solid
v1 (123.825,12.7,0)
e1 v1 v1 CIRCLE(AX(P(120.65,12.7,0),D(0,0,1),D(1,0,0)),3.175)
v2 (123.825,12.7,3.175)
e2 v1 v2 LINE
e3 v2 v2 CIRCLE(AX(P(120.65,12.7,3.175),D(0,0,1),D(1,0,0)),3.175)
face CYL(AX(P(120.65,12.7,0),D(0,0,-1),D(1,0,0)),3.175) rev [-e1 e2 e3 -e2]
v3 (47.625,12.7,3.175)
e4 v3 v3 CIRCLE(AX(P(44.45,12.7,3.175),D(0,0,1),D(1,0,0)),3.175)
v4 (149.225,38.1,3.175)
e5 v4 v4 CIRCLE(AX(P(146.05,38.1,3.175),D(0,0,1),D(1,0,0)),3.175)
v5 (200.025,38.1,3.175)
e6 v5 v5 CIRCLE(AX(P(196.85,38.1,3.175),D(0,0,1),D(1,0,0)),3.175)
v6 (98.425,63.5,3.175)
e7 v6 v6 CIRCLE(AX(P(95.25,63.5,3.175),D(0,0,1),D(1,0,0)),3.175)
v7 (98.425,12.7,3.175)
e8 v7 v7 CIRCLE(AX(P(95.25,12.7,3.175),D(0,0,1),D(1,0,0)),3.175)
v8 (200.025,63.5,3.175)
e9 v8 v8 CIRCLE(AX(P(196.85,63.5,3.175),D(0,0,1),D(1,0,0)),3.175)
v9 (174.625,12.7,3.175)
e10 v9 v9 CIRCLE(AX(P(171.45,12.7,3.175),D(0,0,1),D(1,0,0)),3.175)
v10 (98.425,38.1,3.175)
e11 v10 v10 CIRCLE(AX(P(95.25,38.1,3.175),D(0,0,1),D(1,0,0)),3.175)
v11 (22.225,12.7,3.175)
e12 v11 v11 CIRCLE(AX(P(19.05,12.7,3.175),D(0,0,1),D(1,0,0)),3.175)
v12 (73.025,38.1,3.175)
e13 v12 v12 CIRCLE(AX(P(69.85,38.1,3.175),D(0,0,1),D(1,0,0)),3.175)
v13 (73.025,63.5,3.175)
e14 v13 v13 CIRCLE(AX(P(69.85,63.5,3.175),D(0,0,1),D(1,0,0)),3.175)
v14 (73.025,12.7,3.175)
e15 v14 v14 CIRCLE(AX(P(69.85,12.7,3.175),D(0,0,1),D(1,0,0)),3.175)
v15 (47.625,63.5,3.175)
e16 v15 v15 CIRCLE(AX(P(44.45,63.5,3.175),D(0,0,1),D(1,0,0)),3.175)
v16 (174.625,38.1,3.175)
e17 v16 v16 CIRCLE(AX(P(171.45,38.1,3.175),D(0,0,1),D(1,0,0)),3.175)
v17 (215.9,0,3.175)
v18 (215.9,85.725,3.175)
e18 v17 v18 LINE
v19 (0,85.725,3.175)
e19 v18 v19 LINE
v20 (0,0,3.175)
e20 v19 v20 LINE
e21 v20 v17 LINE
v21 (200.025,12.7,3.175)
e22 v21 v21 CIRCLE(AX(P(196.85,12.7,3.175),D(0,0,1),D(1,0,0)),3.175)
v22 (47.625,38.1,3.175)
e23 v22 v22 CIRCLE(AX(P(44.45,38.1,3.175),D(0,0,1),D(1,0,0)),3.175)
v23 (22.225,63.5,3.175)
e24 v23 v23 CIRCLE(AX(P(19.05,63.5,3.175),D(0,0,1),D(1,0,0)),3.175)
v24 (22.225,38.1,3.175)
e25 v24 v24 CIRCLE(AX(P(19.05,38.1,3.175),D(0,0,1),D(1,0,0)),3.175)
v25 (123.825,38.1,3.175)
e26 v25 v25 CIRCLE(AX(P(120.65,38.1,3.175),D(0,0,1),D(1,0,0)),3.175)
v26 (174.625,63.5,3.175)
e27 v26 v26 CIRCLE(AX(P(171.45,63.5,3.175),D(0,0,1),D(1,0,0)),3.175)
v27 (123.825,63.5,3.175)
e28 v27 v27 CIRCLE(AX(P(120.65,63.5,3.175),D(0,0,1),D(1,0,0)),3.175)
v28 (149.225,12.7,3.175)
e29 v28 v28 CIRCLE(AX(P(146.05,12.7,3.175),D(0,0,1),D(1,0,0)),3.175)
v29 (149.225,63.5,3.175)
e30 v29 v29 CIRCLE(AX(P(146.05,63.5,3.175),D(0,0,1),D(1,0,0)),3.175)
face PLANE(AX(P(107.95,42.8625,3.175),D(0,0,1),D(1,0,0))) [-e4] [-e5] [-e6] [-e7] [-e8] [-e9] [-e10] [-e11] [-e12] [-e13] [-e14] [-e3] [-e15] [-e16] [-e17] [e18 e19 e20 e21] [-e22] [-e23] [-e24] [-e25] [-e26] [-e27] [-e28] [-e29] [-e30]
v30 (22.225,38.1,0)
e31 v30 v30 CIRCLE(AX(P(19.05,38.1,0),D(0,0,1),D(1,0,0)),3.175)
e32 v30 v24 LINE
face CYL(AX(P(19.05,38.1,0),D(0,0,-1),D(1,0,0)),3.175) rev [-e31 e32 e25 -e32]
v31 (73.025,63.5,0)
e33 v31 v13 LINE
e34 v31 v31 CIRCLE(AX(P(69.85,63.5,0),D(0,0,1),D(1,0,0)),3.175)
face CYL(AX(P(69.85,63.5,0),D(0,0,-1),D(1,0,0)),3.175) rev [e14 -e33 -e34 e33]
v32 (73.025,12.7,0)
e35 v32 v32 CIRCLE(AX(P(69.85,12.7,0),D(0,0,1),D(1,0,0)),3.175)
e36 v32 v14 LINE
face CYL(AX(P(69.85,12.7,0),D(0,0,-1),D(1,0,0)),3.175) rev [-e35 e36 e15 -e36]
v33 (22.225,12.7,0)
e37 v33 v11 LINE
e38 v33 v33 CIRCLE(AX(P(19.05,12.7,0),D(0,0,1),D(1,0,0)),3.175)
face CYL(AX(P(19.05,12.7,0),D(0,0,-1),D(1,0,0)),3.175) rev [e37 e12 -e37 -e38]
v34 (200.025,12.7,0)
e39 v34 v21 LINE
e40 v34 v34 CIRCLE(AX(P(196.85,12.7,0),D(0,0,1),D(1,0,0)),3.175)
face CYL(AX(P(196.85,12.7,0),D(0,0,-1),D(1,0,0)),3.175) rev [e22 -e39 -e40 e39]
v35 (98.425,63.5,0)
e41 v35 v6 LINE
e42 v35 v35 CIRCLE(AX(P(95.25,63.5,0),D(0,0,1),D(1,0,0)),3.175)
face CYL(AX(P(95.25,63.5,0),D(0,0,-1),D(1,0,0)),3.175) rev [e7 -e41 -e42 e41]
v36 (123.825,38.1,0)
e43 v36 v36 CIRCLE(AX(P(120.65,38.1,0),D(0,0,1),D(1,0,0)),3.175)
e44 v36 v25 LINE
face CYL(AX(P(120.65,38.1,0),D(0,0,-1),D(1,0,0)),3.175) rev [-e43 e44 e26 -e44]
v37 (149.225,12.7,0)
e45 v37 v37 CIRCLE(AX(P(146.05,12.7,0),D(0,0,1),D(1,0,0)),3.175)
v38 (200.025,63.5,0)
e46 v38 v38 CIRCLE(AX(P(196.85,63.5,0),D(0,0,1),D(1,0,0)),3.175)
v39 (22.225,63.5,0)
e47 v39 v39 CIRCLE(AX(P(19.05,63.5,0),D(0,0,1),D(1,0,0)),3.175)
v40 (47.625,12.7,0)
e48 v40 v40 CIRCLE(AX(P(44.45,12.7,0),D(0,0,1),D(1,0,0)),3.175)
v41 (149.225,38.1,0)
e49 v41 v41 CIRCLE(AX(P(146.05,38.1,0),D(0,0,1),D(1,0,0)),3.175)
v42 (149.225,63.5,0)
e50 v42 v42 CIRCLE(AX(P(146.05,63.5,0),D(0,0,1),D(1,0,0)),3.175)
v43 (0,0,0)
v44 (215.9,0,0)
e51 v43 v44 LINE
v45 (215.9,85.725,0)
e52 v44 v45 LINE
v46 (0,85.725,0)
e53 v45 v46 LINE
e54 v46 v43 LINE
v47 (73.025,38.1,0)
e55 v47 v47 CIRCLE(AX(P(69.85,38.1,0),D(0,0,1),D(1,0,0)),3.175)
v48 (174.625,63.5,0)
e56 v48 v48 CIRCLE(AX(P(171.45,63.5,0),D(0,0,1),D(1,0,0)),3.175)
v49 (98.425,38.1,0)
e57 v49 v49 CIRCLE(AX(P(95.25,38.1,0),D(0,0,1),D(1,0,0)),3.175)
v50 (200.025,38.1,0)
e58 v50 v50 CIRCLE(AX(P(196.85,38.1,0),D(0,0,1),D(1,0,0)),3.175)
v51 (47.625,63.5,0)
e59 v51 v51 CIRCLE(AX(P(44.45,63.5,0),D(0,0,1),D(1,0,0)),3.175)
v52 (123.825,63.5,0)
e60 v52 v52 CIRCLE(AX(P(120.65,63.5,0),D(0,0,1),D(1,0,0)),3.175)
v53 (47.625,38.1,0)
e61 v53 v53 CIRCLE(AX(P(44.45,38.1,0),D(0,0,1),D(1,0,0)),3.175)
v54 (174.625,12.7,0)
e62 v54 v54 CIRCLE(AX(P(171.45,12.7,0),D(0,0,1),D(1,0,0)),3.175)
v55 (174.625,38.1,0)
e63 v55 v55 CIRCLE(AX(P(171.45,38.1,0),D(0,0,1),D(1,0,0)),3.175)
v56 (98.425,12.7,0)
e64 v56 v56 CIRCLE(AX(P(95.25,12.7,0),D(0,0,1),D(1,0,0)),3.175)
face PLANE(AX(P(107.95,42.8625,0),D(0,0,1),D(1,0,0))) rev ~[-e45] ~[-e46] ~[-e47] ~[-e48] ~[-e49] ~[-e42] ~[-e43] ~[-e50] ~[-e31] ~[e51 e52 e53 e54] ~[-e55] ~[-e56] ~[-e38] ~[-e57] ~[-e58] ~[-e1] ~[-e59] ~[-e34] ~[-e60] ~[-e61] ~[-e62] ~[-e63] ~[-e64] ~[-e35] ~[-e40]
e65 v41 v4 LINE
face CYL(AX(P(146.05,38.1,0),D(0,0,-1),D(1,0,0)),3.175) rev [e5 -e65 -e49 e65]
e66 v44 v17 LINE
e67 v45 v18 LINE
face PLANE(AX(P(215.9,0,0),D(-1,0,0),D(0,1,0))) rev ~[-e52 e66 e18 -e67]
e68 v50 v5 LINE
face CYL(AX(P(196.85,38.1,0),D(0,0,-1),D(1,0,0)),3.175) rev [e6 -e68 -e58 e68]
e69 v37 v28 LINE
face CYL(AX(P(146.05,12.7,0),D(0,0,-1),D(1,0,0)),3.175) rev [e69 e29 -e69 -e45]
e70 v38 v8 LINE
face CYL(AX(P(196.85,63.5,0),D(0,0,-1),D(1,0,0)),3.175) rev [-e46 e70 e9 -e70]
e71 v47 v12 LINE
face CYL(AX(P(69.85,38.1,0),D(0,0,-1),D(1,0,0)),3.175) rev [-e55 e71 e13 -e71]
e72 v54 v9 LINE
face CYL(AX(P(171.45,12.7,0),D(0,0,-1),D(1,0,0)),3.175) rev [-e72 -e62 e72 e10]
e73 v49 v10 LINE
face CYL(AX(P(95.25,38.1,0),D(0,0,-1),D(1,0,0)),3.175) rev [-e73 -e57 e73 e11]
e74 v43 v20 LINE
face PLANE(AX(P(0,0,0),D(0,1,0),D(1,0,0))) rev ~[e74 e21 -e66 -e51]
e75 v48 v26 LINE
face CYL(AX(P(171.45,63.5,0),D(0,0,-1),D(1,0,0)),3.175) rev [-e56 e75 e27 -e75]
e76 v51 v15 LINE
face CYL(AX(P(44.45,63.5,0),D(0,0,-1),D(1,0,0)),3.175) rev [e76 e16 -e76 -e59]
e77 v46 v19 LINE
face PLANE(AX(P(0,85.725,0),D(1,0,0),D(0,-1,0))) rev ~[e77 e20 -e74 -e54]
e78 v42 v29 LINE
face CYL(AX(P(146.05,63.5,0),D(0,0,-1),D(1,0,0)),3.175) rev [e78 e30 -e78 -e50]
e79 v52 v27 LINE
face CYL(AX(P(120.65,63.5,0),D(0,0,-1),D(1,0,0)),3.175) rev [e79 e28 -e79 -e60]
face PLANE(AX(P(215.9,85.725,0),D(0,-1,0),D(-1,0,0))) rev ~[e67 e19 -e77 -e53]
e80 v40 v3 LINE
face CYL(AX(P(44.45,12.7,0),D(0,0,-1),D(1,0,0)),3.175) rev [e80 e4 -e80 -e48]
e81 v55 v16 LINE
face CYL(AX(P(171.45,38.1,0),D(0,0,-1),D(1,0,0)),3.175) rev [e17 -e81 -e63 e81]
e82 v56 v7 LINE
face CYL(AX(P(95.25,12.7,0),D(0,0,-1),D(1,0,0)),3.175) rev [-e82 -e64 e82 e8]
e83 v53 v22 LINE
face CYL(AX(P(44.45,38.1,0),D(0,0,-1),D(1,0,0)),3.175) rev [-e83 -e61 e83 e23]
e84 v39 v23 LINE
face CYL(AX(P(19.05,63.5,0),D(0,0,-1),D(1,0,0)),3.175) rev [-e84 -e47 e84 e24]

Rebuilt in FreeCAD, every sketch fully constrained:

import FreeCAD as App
import Part
import Sketcher

V = App.Vector
Q = App.Units.Quantity

doc = App.newDocument("Part")
body = doc.addObject("PartDesign::Body", "Body")

# Sketch on XY plane
sketch1 = body.newObject("Sketcher::SketchObject", "Sketch")
sketch1.AttachmentSupport = (doc.getObject("XY_Plane"), [""])
sketch1.MapMode = "FlatFace"
sketch1.addGeometry([
    Part.LineSegment(V(0, 85.7, 0), V(0, 0, 0)),  # 0
    Part.LineSegment(V(0, 0, 0), V(215.9, 0, 0)),  # 1
    Part.LineSegment(V(215.9, 0, 0), V(215.9, 85.7, 0)),  # 2
    Part.LineSegment(V(215.9, 85.7, 0), V(0, 85.7, 0)),  # 3
    Part.Circle(V(19.1, 12.7, 0), V(0, 0, 1), 3.2),  # 4
    Part.Circle(V(44.5, 12.7, 0), V(0, 0, 1), 3.2),  # 5
    Part.Circle(V(69.8, 12.7, 0), V(0, 0, 1), 3.2),  # 6
    Part.Circle(V(95.2, 12.7, 0), V(0, 0, 1), 3.2),  # 7
    Part.Circle(V(120.7, 12.7, 0), V(0, 0, 1), 3.2),  # 8
    Part.Circle(V(146.1, 12.7, 0), V(0, 0, 1), 3.2),  # 9
    Part.Circle(V(171.4, 12.7, 0), V(0, 0, 1), 3.2),  # 10
    Part.Circle(V(196.8, 12.7, 0), V(0, 0, 1), 3.2),  # 11
    Part.Circle(V(19.1, 38.1, 0), V(0, 0, 1), 3.2),  # 12
    Part.Circle(V(44.5, 38.1, 0), V(0, 0, 1), 3.2),  # 13
    Part.Circle(V(69.8, 38.1, 0), V(0, 0, 1), 3.2),  # 14
    Part.Circle(V(95.2, 38.1, 0), V(0, 0, 1), 3.2),  # 15
    Part.Circle(V(19.1, 63.5, 0), V(0, 0, 1), 3.2),  # 16
    Part.Circle(V(44.5, 63.5, 0), V(0, 0, 1), 3.2),  # 17
    Part.Circle(V(69.8, 63.5, 0), V(0, 0, 1), 3.2),  # 18
    Part.Circle(V(95.2, 63.5, 0), V(0, 0, 1), 3.2),  # 19
    Part.Circle(V(120.7, 38.1, 0), V(0, 0, 1), 3.2),  # 20
    Part.Circle(V(146.1, 38.1, 0), V(0, 0, 1), 3.2),  # 21
    Part.Circle(V(171.4, 38.1, 0), V(0, 0, 1), 3.2),  # 22
    Part.Circle(V(196.8, 38.1, 0), V(0, 0, 1), 3.2),  # 23
    Part.Circle(V(120.7, 63.5, 0), V(0, 0, 1), 3.2),  # 24
    Part.Circle(V(146.1, 63.5, 0), V(0, 0, 1), 3.2),  # 25
    Part.Circle(V(171.4, 63.5, 0), V(0, 0, 1), 3.2),  # 26
    Part.Circle(V(196.8, 63.5, 0), V(0, 0, 1), 3.2),  # 27
], False)
sketch1.addConstraint([
    Sketcher.Constraint("Coincident", 0, 2, 1, 1),
    Sketcher.Constraint("Coincident", 1, 2, 2, 1),
    Sketcher.Constraint("Coincident", 2, 2, 3, 1),
    Sketcher.Constraint("Coincident", 3, 2, 0, 1),
    Sketcher.Constraint("Vertical", 0),
    Sketcher.Constraint("Horizontal", 1),
    Sketcher.Constraint("Vertical", 2),
    Sketcher.Constraint("Horizontal", 3),
    Sketcher.Constraint("Coincident", 0, 2, -1, 1),
    Sketcher.Constraint("Equal", 4, 5),
    Sketcher.Constraint("Equal", 5, 6),
    Sketcher.Constraint("Equal", 6, 7),
    Sketcher.Constraint("Equal", 7, 8),
    Sketcher.Constraint("Equal", 8, 9),
    Sketcher.Constraint("Equal", 9, 10),
    Sketcher.Constraint("Equal", 10, 11),
    Sketcher.Constraint("Equal", 11, 12),
    Sketcher.Constraint("Equal", 12, 13),
    Sketcher.Constraint("Equal", 13, 14),
    Sketcher.Constraint("Equal", 14, 15),
    Sketcher.Constraint("Equal", 15, 16),
    Sketcher.Constraint("Equal", 16, 17),
    Sketcher.Constraint("Equal", 17, 18),
    Sketcher.Constraint("Equal", 18, 19),
    Sketcher.Constraint("Equal", 19, 20),
    Sketcher.Constraint("Equal", 20, 21),
    Sketcher.Constraint("Equal", 21, 22),
    Sketcher.Constraint("Equal", 22, 23),
    Sketcher.Constraint("Equal", 23, 24),
    Sketcher.Constraint("Equal", 24, 25),
    Sketcher.Constraint("Equal", 25, 26),
    Sketcher.Constraint("Equal", 26, 27),
    Sketcher.Constraint("Horizontal", 4, 3, 5, 3),
    Sketcher.Constraint("Horizontal", 5, 3, 6, 3),
    Sketcher.Constraint("Horizontal", 6, 3, 7, 3),
    Sketcher.Constraint("Horizontal", 7, 3, 8, 3),
    Sketcher.Constraint("Horizontal", 8, 3, 9, 3),
    Sketcher.Constraint("Horizontal", 9, 3, 10, 3),
    Sketcher.Constraint("Horizontal", 10, 3, 11, 3),
    Sketcher.Constraint("Horizontal", 12, 3, 13, 3),
    Sketcher.Constraint("Horizontal", 13, 3, 14, 3),
    Sketcher.Constraint("Horizontal", 14, 3, 15, 3),
    Sketcher.Constraint("Horizontal", 16, 3, 17, 3),
    Sketcher.Constraint("Horizontal", 17, 3, 18, 3),
    Sketcher.Constraint("Horizontal", 18, 3, 19, 3),
    Sketcher.Constraint("Horizontal", 15, 3, 20, 3),
    Sketcher.Constraint("Horizontal", 20, 3, 21, 3),
    Sketcher.Constraint("Horizontal", 21, 3, 22, 3),
    Sketcher.Constraint("Horizontal", 22, 3, 23, 3),
    Sketcher.Constraint("Horizontal", 19, 3, 24, 3),
    Sketcher.Constraint("Horizontal", 24, 3, 25, 3),
    Sketcher.Constraint("Horizontal", 25, 3, 26, 3),
    Sketcher.Constraint("Horizontal", 26, 3, 27, 3),
    Sketcher.Constraint("Vertical", 4, 3, 12, 3),
    Sketcher.Constraint("Vertical", 5, 3, 13, 3),
    Sketcher.Constraint("Vertical", 6, 3, 14, 3),
    Sketcher.Constraint("Vertical", 7, 3, 15, 3),
    Sketcher.Constraint("Vertical", 12, 3, 16, 3),
    Sketcher.Constraint("Vertical", 13, 3, 17, 3),
    Sketcher.Constraint("Vertical", 14, 3, 18, 3),
    Sketcher.Constraint("Vertical", 15, 3, 19, 3),
    Sketcher.Constraint("Vertical", 8, 3, 20, 3),
    Sketcher.Constraint("Vertical", 9, 3, 21, 3),
    Sketcher.Constraint("Vertical", 10, 3, 22, 3),
    Sketcher.Constraint("Vertical", 11, 3, 23, 3),
    Sketcher.Constraint("Vertical", 20, 3, 24, 3),
    Sketcher.Constraint("Vertical", 21, 3, 25, 3),
    Sketcher.Constraint("Vertical", 22, 3, 26, 3),
    Sketcher.Constraint("Vertical", 23, 3, 27, 3),
    Sketcher.Constraint("Diameter", 4, Q("0.25 in")),
    Sketcher.Constraint("DistanceX", 1, 1, 1, 2, Q("8.5 in")),
    Sketcher.Constraint("DistanceX", 4, 3, 5, 3, Q("1 in")),
    Sketcher.Constraint("DistanceX", 5, 3, 6, 3, Q("1 in")),
    Sketcher.Constraint("DistanceX", 6, 3, 7, 3, Q("1 in")),
    Sketcher.Constraint("DistanceX", 7, 3, 8, 3, Q("1 in")),
    Sketcher.Constraint("DistanceX", 8, 3, 9, 3, Q("1 in")),
    Sketcher.Constraint("DistanceX", 9, 3, 10, 3, Q("1 in")),
    Sketcher.Constraint("DistanceX", 10, 3, 11, 3, Q("1 in")),
    Sketcher.Constraint("DistanceY", 4, 3, 12, 3, Q("1 in")),
    Sketcher.Constraint("DistanceY", 12, 3, 16, 3, Q("1 in")),
    Sketcher.Constraint("DistanceY", -1, 1, 4, 3, Q("0.5 in")),
    Sketcher.Constraint("DistanceY", 0, 2, 0, 1, Q("3.375 in")),
    Sketcher.Constraint("DistanceX", -1, 1, 4, 3, Q("0.75 in")),
])
pad1 = body.newObject("PartDesign::Pad", "Pad")
pad1.Profile = sketch1
pad1.Length = Q("0.125 in")

doc.recompute()
